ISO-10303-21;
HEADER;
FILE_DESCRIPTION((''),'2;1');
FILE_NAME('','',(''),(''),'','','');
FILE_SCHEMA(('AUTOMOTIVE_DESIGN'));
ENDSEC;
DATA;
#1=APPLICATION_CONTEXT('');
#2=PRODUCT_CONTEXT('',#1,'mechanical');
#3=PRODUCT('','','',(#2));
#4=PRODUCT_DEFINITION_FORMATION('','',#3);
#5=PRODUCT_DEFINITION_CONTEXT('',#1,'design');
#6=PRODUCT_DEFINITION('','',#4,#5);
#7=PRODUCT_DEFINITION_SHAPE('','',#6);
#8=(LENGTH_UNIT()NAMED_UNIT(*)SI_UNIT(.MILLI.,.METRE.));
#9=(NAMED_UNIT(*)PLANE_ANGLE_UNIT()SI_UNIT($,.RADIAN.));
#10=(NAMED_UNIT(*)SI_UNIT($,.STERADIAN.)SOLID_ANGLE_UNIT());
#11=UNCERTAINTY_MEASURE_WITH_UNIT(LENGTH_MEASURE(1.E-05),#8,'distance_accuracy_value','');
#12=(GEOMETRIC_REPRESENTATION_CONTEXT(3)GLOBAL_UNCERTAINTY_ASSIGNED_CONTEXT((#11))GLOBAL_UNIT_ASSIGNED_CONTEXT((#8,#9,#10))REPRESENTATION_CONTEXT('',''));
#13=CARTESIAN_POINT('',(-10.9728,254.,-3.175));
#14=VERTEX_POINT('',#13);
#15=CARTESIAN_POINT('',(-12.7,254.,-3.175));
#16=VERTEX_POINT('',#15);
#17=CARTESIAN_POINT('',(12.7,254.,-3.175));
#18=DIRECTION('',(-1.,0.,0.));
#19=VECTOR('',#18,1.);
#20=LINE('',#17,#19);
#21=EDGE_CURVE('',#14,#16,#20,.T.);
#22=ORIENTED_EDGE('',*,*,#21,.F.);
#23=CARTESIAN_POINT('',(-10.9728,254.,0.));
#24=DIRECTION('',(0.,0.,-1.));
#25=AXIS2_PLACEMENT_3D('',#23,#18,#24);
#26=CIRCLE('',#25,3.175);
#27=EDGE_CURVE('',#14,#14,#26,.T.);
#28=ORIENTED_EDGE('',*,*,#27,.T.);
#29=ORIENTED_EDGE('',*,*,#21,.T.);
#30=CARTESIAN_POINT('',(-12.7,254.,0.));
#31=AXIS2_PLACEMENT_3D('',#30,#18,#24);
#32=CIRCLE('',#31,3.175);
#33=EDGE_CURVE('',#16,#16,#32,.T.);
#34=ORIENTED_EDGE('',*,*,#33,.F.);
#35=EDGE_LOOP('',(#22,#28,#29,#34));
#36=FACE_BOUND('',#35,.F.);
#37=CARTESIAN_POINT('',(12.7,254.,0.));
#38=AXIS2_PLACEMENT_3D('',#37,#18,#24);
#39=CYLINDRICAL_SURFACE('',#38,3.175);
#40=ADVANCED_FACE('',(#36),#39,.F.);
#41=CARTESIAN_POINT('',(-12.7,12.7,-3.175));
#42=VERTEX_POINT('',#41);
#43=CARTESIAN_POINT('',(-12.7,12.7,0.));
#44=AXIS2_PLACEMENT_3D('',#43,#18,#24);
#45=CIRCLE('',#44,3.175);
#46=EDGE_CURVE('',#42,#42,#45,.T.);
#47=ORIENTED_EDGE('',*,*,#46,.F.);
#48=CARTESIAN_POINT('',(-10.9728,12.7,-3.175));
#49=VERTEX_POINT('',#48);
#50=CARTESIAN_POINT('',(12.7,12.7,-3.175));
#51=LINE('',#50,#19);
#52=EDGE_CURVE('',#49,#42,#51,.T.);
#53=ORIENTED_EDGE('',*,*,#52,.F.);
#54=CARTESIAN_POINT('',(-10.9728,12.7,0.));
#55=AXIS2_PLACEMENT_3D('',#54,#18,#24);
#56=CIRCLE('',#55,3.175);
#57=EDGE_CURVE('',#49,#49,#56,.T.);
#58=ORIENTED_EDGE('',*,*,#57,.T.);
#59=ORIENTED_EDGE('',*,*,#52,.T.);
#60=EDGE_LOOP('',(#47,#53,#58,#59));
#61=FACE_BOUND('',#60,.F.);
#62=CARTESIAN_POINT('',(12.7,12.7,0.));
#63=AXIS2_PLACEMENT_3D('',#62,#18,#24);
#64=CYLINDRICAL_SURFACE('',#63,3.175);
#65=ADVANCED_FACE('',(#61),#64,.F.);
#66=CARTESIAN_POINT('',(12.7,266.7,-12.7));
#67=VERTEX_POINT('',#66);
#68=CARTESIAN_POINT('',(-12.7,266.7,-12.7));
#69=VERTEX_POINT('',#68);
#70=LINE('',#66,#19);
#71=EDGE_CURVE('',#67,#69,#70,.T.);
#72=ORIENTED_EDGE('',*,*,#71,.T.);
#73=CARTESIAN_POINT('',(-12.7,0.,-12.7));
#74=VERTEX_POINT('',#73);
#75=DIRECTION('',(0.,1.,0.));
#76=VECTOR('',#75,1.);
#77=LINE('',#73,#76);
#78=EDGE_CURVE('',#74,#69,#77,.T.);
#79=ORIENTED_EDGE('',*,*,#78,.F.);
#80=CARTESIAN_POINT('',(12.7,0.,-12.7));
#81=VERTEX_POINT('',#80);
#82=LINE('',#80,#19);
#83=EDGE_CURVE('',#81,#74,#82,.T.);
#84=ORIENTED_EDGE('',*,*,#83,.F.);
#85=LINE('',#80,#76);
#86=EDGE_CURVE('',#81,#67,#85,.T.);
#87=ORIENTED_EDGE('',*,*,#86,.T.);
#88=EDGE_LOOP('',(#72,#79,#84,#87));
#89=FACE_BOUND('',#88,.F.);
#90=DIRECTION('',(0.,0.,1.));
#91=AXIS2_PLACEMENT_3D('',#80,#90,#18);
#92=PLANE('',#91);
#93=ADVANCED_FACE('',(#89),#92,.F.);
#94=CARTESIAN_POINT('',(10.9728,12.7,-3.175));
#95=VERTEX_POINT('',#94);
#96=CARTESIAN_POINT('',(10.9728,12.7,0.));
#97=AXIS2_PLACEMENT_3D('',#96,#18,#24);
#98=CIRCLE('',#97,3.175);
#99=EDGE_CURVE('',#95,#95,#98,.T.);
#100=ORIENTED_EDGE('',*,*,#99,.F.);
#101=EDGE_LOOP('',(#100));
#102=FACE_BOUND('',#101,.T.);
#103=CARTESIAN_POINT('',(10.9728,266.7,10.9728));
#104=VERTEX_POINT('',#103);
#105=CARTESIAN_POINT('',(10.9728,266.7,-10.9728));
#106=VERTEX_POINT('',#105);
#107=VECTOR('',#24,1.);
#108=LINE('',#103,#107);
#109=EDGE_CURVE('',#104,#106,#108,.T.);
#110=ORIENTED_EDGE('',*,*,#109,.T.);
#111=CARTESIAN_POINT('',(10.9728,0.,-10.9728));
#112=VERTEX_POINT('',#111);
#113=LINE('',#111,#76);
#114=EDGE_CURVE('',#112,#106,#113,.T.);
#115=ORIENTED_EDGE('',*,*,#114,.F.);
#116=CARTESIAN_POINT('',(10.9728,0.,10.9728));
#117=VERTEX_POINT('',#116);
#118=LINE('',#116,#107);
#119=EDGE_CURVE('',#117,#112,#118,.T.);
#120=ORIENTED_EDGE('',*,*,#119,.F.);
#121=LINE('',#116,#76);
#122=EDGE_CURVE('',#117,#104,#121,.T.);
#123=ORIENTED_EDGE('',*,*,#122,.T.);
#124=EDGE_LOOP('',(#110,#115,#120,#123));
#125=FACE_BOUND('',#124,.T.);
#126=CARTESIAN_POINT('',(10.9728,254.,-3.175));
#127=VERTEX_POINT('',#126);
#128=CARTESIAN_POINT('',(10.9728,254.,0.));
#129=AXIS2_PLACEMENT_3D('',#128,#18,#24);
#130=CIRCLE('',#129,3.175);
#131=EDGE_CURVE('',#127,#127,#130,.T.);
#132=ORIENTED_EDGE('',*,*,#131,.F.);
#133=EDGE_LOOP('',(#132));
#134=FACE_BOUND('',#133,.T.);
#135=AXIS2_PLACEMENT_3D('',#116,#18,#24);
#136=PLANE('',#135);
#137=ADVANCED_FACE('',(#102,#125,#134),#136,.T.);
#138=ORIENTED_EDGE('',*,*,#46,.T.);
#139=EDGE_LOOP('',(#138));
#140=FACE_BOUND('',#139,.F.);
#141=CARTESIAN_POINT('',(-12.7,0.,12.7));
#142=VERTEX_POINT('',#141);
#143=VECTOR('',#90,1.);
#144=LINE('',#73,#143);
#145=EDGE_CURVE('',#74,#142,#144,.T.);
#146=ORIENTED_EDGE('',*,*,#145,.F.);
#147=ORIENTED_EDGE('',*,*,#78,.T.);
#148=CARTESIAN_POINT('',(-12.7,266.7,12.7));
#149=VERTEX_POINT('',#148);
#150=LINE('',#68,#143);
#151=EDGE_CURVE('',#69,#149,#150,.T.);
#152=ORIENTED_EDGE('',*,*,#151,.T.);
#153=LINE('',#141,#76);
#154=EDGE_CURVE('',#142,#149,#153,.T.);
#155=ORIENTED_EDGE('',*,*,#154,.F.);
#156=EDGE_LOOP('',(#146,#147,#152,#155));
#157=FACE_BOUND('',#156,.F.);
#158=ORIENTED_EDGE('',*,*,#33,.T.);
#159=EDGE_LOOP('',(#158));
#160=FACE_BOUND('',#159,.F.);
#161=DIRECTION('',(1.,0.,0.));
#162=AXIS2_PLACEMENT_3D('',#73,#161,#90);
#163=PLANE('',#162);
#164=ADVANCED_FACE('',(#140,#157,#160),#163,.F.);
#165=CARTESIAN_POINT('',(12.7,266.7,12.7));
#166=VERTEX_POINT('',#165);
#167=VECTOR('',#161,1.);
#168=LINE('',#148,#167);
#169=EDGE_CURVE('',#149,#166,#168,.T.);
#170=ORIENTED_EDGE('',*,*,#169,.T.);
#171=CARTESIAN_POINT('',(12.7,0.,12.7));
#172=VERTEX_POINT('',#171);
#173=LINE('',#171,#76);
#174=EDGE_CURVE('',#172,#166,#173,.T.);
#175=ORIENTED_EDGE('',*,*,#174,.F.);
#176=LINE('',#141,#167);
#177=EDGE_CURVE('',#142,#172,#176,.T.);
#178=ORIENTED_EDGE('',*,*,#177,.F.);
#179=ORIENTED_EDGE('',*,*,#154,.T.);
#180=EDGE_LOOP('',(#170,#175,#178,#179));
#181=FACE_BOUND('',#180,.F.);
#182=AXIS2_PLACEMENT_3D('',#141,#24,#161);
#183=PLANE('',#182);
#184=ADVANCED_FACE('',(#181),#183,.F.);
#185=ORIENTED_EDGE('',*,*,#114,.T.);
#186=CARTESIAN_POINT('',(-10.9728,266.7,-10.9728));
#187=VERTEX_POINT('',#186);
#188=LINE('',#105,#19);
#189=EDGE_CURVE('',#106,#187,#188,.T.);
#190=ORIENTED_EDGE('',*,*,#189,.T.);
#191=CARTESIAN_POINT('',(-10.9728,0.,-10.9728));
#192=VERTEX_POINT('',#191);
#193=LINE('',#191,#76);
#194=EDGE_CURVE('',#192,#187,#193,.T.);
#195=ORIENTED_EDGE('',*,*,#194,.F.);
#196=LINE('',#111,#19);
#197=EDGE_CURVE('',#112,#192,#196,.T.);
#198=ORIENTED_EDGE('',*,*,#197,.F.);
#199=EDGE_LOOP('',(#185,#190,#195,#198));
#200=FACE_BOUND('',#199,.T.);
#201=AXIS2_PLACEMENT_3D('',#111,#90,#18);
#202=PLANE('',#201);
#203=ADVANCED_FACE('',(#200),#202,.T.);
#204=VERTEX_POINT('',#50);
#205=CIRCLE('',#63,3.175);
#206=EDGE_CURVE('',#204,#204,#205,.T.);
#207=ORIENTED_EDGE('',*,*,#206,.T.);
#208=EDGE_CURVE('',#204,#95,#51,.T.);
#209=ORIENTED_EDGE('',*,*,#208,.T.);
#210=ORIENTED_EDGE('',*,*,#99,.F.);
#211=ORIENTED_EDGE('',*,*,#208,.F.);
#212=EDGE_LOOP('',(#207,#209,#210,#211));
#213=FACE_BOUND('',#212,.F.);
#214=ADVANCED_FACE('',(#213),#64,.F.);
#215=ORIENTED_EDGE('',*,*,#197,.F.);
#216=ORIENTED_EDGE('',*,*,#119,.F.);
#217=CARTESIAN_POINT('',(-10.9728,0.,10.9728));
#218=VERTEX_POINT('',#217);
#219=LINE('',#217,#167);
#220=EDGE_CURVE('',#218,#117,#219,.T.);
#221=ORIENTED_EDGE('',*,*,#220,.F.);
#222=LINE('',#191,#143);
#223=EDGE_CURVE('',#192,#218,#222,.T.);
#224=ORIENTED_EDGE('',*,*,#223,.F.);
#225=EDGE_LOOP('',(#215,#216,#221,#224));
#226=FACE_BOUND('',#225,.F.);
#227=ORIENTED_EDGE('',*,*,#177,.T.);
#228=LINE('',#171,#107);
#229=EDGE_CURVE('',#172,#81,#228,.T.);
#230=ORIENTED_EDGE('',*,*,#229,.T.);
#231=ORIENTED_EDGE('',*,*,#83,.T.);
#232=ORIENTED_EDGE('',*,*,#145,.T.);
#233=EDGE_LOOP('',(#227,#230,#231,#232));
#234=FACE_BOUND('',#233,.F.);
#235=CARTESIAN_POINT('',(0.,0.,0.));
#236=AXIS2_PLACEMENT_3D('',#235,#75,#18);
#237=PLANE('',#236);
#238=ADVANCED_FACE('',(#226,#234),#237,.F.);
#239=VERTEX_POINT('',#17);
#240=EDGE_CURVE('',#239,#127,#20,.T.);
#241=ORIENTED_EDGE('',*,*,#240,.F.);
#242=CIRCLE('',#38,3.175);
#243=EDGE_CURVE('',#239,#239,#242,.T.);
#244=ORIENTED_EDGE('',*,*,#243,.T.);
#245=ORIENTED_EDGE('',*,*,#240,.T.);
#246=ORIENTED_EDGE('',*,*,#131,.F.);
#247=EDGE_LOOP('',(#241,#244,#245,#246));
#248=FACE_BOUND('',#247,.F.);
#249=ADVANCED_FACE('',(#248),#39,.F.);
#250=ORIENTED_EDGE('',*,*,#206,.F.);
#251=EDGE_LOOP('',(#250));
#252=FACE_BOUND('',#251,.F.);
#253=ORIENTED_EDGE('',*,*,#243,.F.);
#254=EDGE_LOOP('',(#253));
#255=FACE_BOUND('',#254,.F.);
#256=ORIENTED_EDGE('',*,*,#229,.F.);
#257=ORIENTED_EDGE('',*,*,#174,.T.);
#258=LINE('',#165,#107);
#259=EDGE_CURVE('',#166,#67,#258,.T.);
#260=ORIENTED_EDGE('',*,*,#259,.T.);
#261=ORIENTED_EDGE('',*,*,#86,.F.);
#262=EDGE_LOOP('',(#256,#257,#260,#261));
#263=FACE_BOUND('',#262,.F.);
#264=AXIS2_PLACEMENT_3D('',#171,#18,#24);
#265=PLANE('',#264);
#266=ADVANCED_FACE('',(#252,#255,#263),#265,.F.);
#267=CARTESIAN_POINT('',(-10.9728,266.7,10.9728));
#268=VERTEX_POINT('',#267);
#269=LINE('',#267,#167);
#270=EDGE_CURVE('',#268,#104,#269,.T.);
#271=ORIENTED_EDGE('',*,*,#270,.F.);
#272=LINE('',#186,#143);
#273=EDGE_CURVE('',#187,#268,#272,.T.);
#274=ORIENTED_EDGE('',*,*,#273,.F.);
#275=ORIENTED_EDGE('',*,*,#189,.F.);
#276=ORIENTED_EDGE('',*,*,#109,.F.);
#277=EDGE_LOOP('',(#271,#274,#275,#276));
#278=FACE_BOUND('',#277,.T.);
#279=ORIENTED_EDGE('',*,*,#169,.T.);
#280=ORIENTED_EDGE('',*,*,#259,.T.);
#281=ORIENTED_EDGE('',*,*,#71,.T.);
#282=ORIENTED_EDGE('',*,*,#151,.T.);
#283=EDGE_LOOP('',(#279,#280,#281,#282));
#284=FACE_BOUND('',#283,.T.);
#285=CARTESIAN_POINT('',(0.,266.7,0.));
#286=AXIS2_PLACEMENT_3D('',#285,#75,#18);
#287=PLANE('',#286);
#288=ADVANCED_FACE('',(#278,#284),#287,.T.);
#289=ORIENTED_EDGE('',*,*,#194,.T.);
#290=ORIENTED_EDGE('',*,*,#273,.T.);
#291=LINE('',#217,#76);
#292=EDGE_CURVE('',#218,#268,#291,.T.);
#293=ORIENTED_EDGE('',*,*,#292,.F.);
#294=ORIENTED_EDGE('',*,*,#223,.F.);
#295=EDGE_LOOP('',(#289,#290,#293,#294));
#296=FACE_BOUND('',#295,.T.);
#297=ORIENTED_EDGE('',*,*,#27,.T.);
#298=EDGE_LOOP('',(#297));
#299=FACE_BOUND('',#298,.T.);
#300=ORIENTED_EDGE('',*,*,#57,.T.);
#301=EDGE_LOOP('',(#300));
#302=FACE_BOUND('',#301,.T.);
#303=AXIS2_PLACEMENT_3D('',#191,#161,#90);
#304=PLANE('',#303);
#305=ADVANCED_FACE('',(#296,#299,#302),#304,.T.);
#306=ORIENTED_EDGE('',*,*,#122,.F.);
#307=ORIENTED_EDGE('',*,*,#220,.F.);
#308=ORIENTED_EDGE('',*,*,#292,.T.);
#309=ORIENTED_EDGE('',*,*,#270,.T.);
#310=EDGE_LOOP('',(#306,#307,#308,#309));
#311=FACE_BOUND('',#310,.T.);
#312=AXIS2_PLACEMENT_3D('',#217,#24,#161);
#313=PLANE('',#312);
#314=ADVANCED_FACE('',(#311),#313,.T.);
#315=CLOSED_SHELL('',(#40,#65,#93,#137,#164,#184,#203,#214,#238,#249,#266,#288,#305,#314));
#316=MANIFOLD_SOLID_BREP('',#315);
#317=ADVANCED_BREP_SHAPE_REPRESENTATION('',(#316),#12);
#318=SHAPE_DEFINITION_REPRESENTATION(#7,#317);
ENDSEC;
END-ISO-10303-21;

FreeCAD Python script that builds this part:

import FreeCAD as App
import Part
import Sketcher

V = App.Vector
Q = App.Units.Quantity

doc = App.newDocument("Part")
body = doc.addObject("PartDesign::Body", "Body")

sketch1 = body.newObject("Sketcher::SketchObject", "Sketch")
sketch1.AttachmentSupport = (doc.getObject("XZ_Plane"), [""])
sketch1.MapMode = "FlatFace"
sketch1.addGeometry(Part.LineSegment(V(-13, -13, 0), V(-13, 13, 0)), False)
sketch1.addGeometry(Part.LineSegment(V(-13, 13, 0), V(13, 13, 0)), False)
sketch1.addGeometry(Part.LineSegment(V(13, 13, 0), V(13, -13, 0)), False)
sketch1.addGeometry(Part.LineSegment(V(13, -13, 0), V(-13, -13, 0)), False)
sketch1.addGeometry(Part.LineSegment(V(-11, -11, 0), V(11, -11, 0)), False)
sketch1.addGeometry(Part.LineSegment(V(11, -11, 0), V(11, 11, 0)), False)
sketch1.addGeometry(Part.LineSegment(V(11, 11, 0), V(-11, 11, 0)), False)
sketch1.addGeometry(Part.LineSegment(V(-11, 11, 0), V(-11, -11, 0)), False)
sketch1.addConstraint(Sketcher.Constraint("Coincident", 0, 2, 1, 1))
sketch1.addConstraint(Sketcher.Constraint("Coincident", 1, 2, 2, 1))
sketch1.addConstraint(Sketcher.Constraint("Coincident", 2, 2, 3, 1))
sketch1.addConstraint(Sketcher.Constraint("Coincident", 3, 2, 0, 1))
sketch1.addConstraint(Sketcher.Constraint("Coincident", 4, 2, 5, 1))
sketch1.addConstraint(Sketcher.Constraint("Coincident", 5, 2, 6, 1))
sketch1.addConstraint(Sketcher.Constraint("Coincident", 6, 2, 7, 1))
sketch1.addConstraint(Sketcher.Constraint("Coincident", 7, 2, 4, 1))
sketch1.addConstraint(Sketcher.Constraint("Vertical", 0))
sketch1.addConstraint(Sketcher.Constraint("Horizontal", 1))
sketch1.addConstraint(Sketcher.Constraint("Vertical", 2))
sketch1.addConstraint(Sketcher.Constraint("Horizontal", 3))
sketch1.addConstraint(Sketcher.Constraint("Horizontal", 4))
sketch1.addConstraint(Sketcher.Constraint("Vertical", 5))
sketch1.addConstraint(Sketcher.Constraint("Horizontal", 6))
sketch1.addConstraint(Sketcher.Constraint("Vertical", 7))
sketch1.addConstraint(Sketcher.Constraint("Symmetric", 0, 2, 2, 2, -1, 1))
sketch1.addConstraint(Sketcher.Constraint("Symmetric", 4, 2, 6, 2, -1, 1))
sketch1.addConstraint(Sketcher.Constraint("Equal", 3, 0))
sketch1.addConstraint(Sketcher.Constraint("Equal", 6, 5))
sketch1.addConstraint(Sketcher.Constraint("DistanceX", 1, 1, 1, 2, Q("1 in")))
sketch1.addConstraint(Sketcher.Constraint("DistanceX", 4, 2, 2, 2, Q("0.068 in")))
pad1 = body.newObject("PartDesign::Pad", "Pad")
pad1.Profile = sketch1
pad1.Length = Q("10.5 in")
pad1.Reversed = True

sketch2 = body.newObject("Sketcher::SketchObject", "Sketch001")
sketch2.AttachmentSupport = (doc.getObject("YZ_Plane"), [""])
sketch2.MapMode = "FlatFace"
sketch2.AttachmentOffset = App.Placement(V(0, 0, 0.5 * 25.4), App.Rotation())
sketch2.addGeometry(Part.Circle(V(254, 0, 0), V(0, 0, 1), 3.2), False)
sketch2.addGeometry(Part.Circle(V(12.7, 0, 0), V(0, 0, 1), 3.2), False)
sketch2.addConstraint(Sketcher.Constraint("Equal", 0, 1))
sketch2.addConstraint(Sketcher.Constraint("PointOnObject", 0, 3, -1))
sketch2.addConstraint(Sketcher.Constraint("PointOnObject", 1, 3, -1))
sketch2.addConstraint(Sketcher.Constraint("Diameter", 0, Q("0.25 in")))
sketch2.addConstraint(Sketcher.Constraint("DistanceX", -1, 1, 0, 3, Q("10 in")))
sketch2.addConstraint(Sketcher.Constraint("DistanceX", -1, 1, 1, 3, Q("0.5 in")))
doc.recompute()
hole = body.newObject("PartDesign::Hole", "Hole")
hole.Profile = sketch2
hole.ThreadType = "None"
hole.Diameter = Q("0.25 in")
hole.DepthType = "ThroughAll"

doc.recompute()
